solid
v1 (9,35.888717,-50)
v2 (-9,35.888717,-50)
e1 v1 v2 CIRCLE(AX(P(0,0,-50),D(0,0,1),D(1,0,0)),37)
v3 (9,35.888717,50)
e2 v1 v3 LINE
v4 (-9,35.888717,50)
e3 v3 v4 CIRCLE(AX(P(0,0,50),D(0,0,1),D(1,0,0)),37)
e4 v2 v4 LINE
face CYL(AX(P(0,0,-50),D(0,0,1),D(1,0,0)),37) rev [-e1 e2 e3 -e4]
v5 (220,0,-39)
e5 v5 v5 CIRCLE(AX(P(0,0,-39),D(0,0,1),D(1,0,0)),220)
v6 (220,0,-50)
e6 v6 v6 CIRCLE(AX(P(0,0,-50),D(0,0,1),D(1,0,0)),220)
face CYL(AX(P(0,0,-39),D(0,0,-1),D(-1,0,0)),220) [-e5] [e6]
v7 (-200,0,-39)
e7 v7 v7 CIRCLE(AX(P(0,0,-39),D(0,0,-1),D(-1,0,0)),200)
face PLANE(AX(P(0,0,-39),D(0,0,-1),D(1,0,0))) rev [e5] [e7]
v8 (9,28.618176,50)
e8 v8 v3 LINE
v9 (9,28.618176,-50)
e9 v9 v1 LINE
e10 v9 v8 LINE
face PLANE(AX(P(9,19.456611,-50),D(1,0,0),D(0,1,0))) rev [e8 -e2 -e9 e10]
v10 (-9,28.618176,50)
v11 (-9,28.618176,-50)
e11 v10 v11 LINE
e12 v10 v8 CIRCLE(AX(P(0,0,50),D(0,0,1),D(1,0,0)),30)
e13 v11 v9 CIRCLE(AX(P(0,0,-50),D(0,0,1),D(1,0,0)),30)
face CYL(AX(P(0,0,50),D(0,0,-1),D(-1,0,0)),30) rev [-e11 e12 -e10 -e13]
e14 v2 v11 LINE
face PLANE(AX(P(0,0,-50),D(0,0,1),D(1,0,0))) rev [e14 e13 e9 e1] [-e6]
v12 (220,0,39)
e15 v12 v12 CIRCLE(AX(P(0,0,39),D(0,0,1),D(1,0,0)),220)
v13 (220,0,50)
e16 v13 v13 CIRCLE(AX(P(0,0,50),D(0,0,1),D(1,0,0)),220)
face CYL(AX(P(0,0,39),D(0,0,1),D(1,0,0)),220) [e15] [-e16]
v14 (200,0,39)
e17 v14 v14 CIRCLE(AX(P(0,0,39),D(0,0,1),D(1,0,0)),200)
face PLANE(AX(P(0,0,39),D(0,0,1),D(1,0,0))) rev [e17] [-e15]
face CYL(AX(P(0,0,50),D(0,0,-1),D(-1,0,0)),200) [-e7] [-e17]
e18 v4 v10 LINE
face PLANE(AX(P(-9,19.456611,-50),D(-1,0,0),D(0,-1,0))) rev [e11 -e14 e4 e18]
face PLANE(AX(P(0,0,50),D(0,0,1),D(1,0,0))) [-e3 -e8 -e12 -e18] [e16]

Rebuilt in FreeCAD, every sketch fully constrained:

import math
import FreeCAD as App
import Part
import Sketcher
from FreeCAD import Vector
Q = App.Units.Quantity

doc = App.newDocument("Part")
params = doc.addObject("Spreadsheet::Sheet", "Params")
for row, (alias, value) in enumerate([
    ("sketch1_diameter", "400 mm"),
    ("sketch1_diameter2", "60 mm"),
    ("pad1_length", "100 mm"),
    ("sketch2_diameter", "440 mm"),
    ("sketch2_diameter2", "60 mm"),
    ("pad2_length", "11 mm"),
    ("sketch3_radius", "37 mm"),
    ("sketch3_width", "18 mm"),
], start=1):
    params.set(f"A{row}", alias)
    params.set(f"B{row}", "=" + value)
    params.setAlias(f"B{row}", alias)

body = doc.addObject("PartDesign::Body", "Body")

sketch1 = body.newObject("Sketcher::SketchObject", "Sketch")
sketch1.AttachmentSupport = (doc.getObject("XY_Plane"), [""])
sketch1.MapMode = "FlatFace"
sketch1.addGeometry([
    Part.Circle(Vector(0, 0, 0), Vector(0, 0, 1), 200),
    Part.Circle(Vector(0, 0, 0), Vector(0, 0, 1), 30),
], False)
sketch1.addConstraint([
    Sketcher.Constraint("Coincident", 0, 3, -1, 1),
    Sketcher.Constraint("Coincident", 1, 3, -1, 1),
    Sketcher.Constraint("Diameter", 0, Q("400 mm")),
    Sketcher.Constraint("Diameter", 1, Q("60 mm")),
])
sketch1.setExpression("Constraints[2]", "Params.sketch1_diameter")
sketch1.setExpression("Constraints[3]", "Params.sketch1_diameter2")
pad1 = body.newObject("PartDesign::Pad", "Pad")
pad1.Profile = sketch1
pad1.setExpression("Length", "Params.pad1_length")
pad1.Midplane = True

sketch2 = body.newObject("Sketcher::SketchObject", "Sketch001")
sketch2.AttachmentSupport = (doc.getObject("XY_Plane"), [""])
sketch2.MapMode = "FlatFace"
sketch2.AttachmentOffset = App.Placement(Vector(0, 0, 39), App.Rotation())
sketch2.addGeometry([
    Part.Circle(Vector(0, 0, 0), Vector(0, 0, 1), 220),
    Part.Circle(Vector(0, 0, 0), Vector(0, 0, 1), 30),
], False)
sketch2.addConstraint([
    Sketcher.Constraint("Coincident", 0, 3, -1, 1),
    Sketcher.Constraint("Coincident", 1, 3, -1, 1),
    Sketcher.Constraint("Diameter", 0, Q("440 mm")),
    Sketcher.Constraint("Diameter", 1, Q("60 mm")),
])
sketch2.setExpression("Constraints[2]", "Params.sketch2_diameter")
sketch2.setExpression("Constraints[3]", "Params.sketch2_diameter2")
pad2 = body.newObject("PartDesign::Pad", "Pad001")
pad2.Profile = sketch2
pad2.setExpression("Length", "Params.pad2_length")
doc.recompute()

mirrored = body.newObject("PartDesign::Mirrored", "Mirrored")
mirrored.Originals = [pad2]
mirrored.MirrorPlane = (doc.getObject("XY_Plane"), [""])
body.Tip = mirrored

sketch3 = body.newObject("Sketcher::SketchObject", "Sketch002")
sketch3.AttachmentSupport = (doc.getObject("XY_Plane"), [""])
sketch3.MapMode = "FlatFace"
sketch3.AttachmentOffset = App.Placement(Vector(0, 0, 50), App.Rotation())
sketch3.addGeometry([
    Part.LineSegment(Vector(9, 19.456611, 0), Vector(9, 35.888717, 0)),
    Part.ArcOfCircle(Part.Circle(Vector(0, 0, 0), Vector(0, 0, 1), 37), math.radians(75.921961), math.radians(104.078039)),
    Part.LineSegment(Vector(-9, 35.888717, 0), Vector(-9, 19.456611, 0)),
    Part.LineSegment(Vector(-9, 19.456611, 0), Vector(9, 19.456611, 0)),
], False)
sketch3.addConstraint([
    Sketcher.Constraint("Coincident", 0, 2, 1, 1),
    Sketcher.Constraint("Coincident", 1, 2, 2, 1),
    Sketcher.Constraint("Coincident", 2, 2, 3, 1),
    Sketcher.Constraint("Coincident", 3, 2, 0, 1),
    Sketcher.Constraint("Vertical", 0),
    Sketcher.Constraint("Vertical", 2),
    Sketcher.Constraint("Horizontal", 3),
    Sketcher.Constraint("Coincident", 1, 3, -1, 1),
    Sketcher.Constraint("Horizontal", 0, 2, 1, 2),
    Sketcher.Constraint("Radius", 1, Q("37 mm")),
    Sketcher.Constraint("DistanceX", 3, 1, 3, 2, Q("18 mm")),
    Sketcher.Constraint("DistanceY", 0, 1, 0, 2, Q("16.432106 mm")),
])
sketch3.setExpression("Constraints[9]", "Params.sketch3_radius")
sketch3.setExpression("Constraints[10]", "Params.sketch3_width")
pocket1 = body.newObject("PartDesign::Pocket", "Pocket")
pocket1.Profile = sketch3
pocket1.Type = "ThroughAll"

doc.recompute()
